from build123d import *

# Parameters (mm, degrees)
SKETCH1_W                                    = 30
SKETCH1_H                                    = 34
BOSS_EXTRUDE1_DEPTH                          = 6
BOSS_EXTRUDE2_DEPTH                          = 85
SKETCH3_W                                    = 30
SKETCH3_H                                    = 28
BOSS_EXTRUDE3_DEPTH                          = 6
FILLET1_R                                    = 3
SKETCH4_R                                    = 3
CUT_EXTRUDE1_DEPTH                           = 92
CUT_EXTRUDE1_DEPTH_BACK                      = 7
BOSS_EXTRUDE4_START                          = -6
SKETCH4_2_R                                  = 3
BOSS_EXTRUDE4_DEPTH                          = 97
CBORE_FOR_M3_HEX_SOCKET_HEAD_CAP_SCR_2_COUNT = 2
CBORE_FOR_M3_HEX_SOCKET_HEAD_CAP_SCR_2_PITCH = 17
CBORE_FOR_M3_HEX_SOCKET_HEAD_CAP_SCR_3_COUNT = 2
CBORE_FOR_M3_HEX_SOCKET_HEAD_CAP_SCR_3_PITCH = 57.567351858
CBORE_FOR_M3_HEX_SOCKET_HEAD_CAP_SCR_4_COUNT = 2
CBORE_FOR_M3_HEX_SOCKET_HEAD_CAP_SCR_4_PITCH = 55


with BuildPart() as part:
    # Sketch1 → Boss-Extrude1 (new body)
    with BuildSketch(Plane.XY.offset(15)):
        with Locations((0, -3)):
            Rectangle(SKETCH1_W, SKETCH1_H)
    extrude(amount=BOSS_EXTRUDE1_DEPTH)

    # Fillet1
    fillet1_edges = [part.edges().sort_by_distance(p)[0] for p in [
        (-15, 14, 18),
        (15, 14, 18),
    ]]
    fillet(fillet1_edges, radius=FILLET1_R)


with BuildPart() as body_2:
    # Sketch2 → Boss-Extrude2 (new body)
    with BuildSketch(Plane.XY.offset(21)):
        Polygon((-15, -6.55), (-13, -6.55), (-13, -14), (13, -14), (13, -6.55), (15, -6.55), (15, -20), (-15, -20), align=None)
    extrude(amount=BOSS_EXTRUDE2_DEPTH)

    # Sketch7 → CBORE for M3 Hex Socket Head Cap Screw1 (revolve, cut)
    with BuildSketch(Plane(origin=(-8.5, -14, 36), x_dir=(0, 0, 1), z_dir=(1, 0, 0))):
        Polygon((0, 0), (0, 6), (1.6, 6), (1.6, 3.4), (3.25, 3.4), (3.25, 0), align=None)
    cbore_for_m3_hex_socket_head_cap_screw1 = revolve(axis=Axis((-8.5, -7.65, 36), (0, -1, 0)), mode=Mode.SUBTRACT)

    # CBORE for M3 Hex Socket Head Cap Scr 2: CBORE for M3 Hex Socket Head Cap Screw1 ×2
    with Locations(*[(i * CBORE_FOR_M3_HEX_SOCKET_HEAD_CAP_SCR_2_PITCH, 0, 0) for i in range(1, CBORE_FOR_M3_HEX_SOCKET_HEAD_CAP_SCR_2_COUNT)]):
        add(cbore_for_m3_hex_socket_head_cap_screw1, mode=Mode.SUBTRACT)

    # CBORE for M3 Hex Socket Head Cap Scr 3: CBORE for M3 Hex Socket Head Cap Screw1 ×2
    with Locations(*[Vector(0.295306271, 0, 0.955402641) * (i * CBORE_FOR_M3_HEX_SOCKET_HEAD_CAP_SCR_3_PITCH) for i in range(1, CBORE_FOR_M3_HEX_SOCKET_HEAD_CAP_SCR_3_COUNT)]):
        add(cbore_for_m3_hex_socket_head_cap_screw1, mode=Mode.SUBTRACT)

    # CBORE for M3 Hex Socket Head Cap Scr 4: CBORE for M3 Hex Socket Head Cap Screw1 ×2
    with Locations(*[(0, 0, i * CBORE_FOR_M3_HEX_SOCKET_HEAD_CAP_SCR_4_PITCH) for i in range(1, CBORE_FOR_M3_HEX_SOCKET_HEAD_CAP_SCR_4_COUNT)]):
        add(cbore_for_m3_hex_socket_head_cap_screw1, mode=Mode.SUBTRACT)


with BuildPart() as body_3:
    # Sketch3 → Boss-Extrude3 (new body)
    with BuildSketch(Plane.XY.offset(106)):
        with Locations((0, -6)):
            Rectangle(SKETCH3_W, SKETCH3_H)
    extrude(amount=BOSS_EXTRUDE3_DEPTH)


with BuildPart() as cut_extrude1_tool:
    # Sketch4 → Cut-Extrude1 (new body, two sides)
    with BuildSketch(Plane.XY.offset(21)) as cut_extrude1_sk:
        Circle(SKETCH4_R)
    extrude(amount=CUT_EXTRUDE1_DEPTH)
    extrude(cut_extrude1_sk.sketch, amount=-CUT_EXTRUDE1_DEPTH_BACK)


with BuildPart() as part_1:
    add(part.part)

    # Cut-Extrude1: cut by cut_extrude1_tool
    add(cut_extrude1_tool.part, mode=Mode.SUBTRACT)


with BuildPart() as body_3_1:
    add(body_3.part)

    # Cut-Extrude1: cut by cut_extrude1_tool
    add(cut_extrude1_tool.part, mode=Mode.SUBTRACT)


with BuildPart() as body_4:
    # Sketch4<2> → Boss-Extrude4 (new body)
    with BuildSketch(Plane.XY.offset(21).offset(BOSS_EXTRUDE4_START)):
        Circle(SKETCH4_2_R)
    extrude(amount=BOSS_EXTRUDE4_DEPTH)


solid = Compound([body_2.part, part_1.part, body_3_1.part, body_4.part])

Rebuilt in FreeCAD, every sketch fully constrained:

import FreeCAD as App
import Part
import Sketcher
Q = App.Units.Quantity


def edges_at(feature, points):
    """Names of the edges that pass closest to the given points."""
    edges = feature.Shape.Edges
    near = lambda p: min(range(len(edges)), key=lambda i: edges[i].distToShape(Part.Vertex(*p))[0])
    return sorted({f"Edge{near(p) + 1}" for p in points})

doc = App.newDocument("Part")
body = doc.addObject("PartDesign::Body", "Body")

# Sketch on XY plane
sketch1 = body.newObject("Sketcher::SketchObject", "Sketch")
sketch1.AttachmentSupport = (doc.getObject("XY_Plane"), [""])
sketch1.MapMode = "FlatFace"
sketch1.AttachmentOffset = App.Placement(App.Vector(0, 0, 15), App.Rotation())
sketch1.addGeometry(Part.LineSegment(App.Vector(-15, 14, 0), App.Vector(-15, -20, 0)), False)
sketch1.addGeometry(Part.LineSegment(App.Vector(-15, -20, 0), App.Vector(15, -20, 0)), False)
sketch1.addGeometry(Part.LineSegment(App.Vector(15, -20, 0), App.Vector(15, 14, 0)), False)
sketch1.addGeometry(Part.LineSegment(App.Vector(15, 14, 0), App.Vector(-15, 14, 0)), False)
sketch1.addConstraint(Sketcher.Constraint("Coincident", 0, 2, 1, 1))
sketch1.addConstraint(Sketcher.Constraint("Coincident", 1, 2, 2, 1))
sketch1.addConstraint(Sketcher.Constraint("Coincident", 2, 2, 3, 1))
sketch1.addConstraint(Sketcher.Constraint("Coincident", 3, 2, 0, 1))
sketch1.addConstraint(Sketcher.Constraint("Vertical", 0))
sketch1.addConstraint(Sketcher.Constraint("Horizontal", 1))
sketch1.addConstraint(Sketcher.Constraint("Vertical", 2))
sketch1.addConstraint(Sketcher.Constraint("Horizontal", 3))
sketch1.addConstraint(Sketcher.Constraint("DistanceX", 1, 1, 1, 2, Q("30 mm")))
sketch1.addConstraint(Sketcher.Constraint("DistanceY", 0, 2, 0, 1, Q("34 mm")))
sketch1.addConstraint(Sketcher.Constraint("DistanceX", 0, 2, -1, 1, Q("15 mm")))
sketch1.addConstraint(Sketcher.Constraint("DistanceY", 0, 2, -1, 1, Q("20 mm")))
pad1 = body.newObject("PartDesign::Pad", "Pad")
pad1.Profile = sketch1
pad1.Length = 6
doc.recompute()

fillet = body.newObject("PartDesign::Fillet", "Fillet")
fillet.Base = (pad1, edges_at(pad1, [(-15, 14, 18), (15, 14, 18)]))
fillet.Radius = 3
body2 = doc.addObject("PartDesign::Body", "Body001")

# Sketch on XY plane
sketch2 = body2.newObject("Sketcher::SketchObject", "Sketch001")
sketch2.AttachmentSupport = (doc.getObject("XY_Plane001"), [""])
sketch2.MapMode = "FlatFace"
sketch2.AttachmentOffset = App.Placement(App.Vector(0, 0, 21), App.Rotation())
sketch2.addGeometry(Part.LineSegment(App.Vector(-13, -6.5, 0), App.Vector(-15, -6.5, 0)), False)
sketch2.addGeometry(Part.LineSegment(App.Vector(-15, -6.5, 0), App.Vector(-15, -20, 0)), False)
sketch2.addGeometry(Part.LineSegment(App.Vector(-15, -20, 0), App.Vector(15, -20, 0)), False)
sketch2.addGeometry(Part.LineSegment(App.Vector(15, -20, 0), App.Vector(15, -6.5, 0)), False)
sketch2.addGeometry(Part.LineSegment(App.Vector(15, -6.5, 0), App.Vector(13, -6.5, 0)), False)
sketch2.addGeometry(Part.LineSegment(App.Vector(13, -6.5, 0), App.Vector(13, -14, 0)), False)
sketch2.addGeometry(Part.LineSegment(App.Vector(13, -14, 0), App.Vector(-13, -14, 0)), False)
sketch2.addGeometry(Part.LineSegment(App.Vector(-13, -14, 0), App.Vector(-13, -6.5, 0)), False)
sketch2.addConstraint(Sketcher.Constraint("Coincident", 0, 2, 1, 1))
sketch2.addConstraint(Sketcher.Constraint("Coincident", 1, 2, 2, 1))
sketch2.addConstraint(Sketcher.Constraint("Coincident", 2, 2, 3, 1))
sketch2.addConstraint(Sketcher.Constraint("Coincident", 3, 2, 4, 1))
sketch2.addConstraint(Sketcher.Constraint("Coincident", 4, 2, 5, 1))
sketch2.addConstraint(Sketcher.Constraint("Coincident", 5, 2, 6, 1))
sketch2.addConstraint(Sketcher.Constraint("Coincident", 6, 2, 7, 1))
sketch2.addConstraint(Sketcher.Constraint("Coincident", 7, 2, 0, 1))
sketch2.addConstraint(Sketcher.Constraint("Horizontal", 0))
sketch2.addConstraint(Sketcher.Constraint("Vertical", 1))
sketch2.addConstraint(Sketcher.Constraint("Horizontal", 2))
sketch2.addConstraint(Sketcher.Constraint("Vertical", 3))
sketch2.addConstraint(Sketcher.Constraint("Horizontal", 4))
sketch2.addConstraint(Sketcher.Constraint("Vertical", 5))
sketch2.addConstraint(Sketcher.Constraint("Horizontal", 6))
sketch2.addConstraint(Sketcher.Constraint("Vertical", 7))
sketch2.addConstraint(Sketcher.Constraint("Symmetric", 0, 2, 3, 2, -2))
sketch2.addConstraint(Sketcher.Constraint("Equal", 0, 4))
sketch2.addConstraint(Sketcher.Constraint("DistanceX", 0, 2, 0, 1, Q("2 mm")))
sketch2.addConstraint(Sketcher.Constraint("DistanceX", 2, 1, 2, 2, Q("30 mm")))
sketch2.addConstraint(Sketcher.Constraint("DistanceY", 1, 2, -1, 1, Q("20 mm")))
sketch2.addConstraint(Sketcher.Constraint("DistanceY", 5, 2, -1, 1, Q("14 mm")))
sketch2.addConstraint(Sketcher.Constraint("DistanceY", 1, 2, 1, 1, Q("13.45 mm")))
pad2 = body2.newObject("PartDesign::Pad", "Pad001")
pad2.Profile = sketch2
pad2.Length = 85

# Sketch on YZ plane
sketch3 = body2.newObject("Sketcher::SketchObject", "Sketch002")
sketch3.AttachmentSupport = (doc.getObject("YZ_Plane001"), [""])
sketch3.MapMode = "FlatFace"
sketch3.AttachmentOffset = App.Placement(App.Vector(0, 0, -8.5), App.Rotation())
sketch3.addGeometry(Part.LineSegment(App.Vector(-20, 36, 0), App.Vector(-14, 36, 0)), False)
sketch3.addGeometry(Part.LineSegment(App.Vector(-14, 36, 0), App.Vector(-14, 39.2, 0)), False)
sketch3.addGeometry(Part.LineSegment(App.Vector(-14, 39.2, 0), App.Vector(-17.4, 39.2, 0)), False)
sketch3.addGeometry(Part.LineSegment(App.Vector(-17.4, 39.2, 0), App.Vector(-17.4, 37.6, 0)), False)
sketch3.addGeometry(Part.LineSegment(App.Vector(-17.4, 37.6, 0), App.Vector(-20, 37.6, 0)), False)
sketch3.addGeometry(Part.LineSegment(App.Vector(-20, 37.6, 0), App.Vector(-20, 36, 0)), False)
sketch3.addGeometry(Part.LineSegment(App.Vector(-14, 36, 0), App.Vector(-20, 36, 0)), True)  # axis
sketch3.addConstraint(Sketcher.Constraint("Coincident", 0, 2, 1, 1))
sketch3.addConstraint(Sketcher.Constraint("Coincident", 1, 2, 2, 1))
sketch3.addConstraint(Sketcher.Constraint("Coincident", 2, 2, 3, 1))
sketch3.addConstraint(Sketcher.Constraint("Coincident", 3, 2, 4, 1))
sketch3.addConstraint(Sketcher.Constraint("Coincident", 4, 2, 5, 1))
sketch3.addConstraint(Sketcher.Constraint("Coincident", 5, 2, 0, 1))
sketch3.addConstraint(Sketcher.Constraint("Horizontal", 0))
sketch3.addConstraint(Sketcher.Constraint("Vertical", 1))
sketch3.addConstraint(Sketcher.Constraint("Horizontal", 2))
sketch3.addConstraint(Sketcher.Constraint("Vertical", 3))
sketch3.addConstraint(Sketcher.Constraint("Horizontal", 4))
sketch3.addConstraint(Sketcher.Constraint("Vertical", 5))
sketch3.addConstraint(Sketcher.Constraint("Horizontal", 6))
sketch3.addConstraint(Sketcher.Constraint("Coincident", 6, 1, 0, 2))
sketch3.addConstraint(Sketcher.Constraint("Vertical", 4, 2, 6, 2))
sketch3.addConstraint(Sketcher.Constraint("DistanceX", 0, 1, 0, 2, Q("6 mm")))
sketch3.addConstraint(Sketcher.Constraint("DistanceX", 2, 2, 2, 1, Q("3.4 mm")))
sketch3.addConstraint(Sketcher.Constraint("DistanceY", 5, 2, 5, 1, Q("1.6 mm")))
sketch3.addConstraint(Sketcher.Constraint("DistanceX", 0, 2, -1, 1, Q("14 mm")))
sketch3.addConstraint(Sketcher.Constraint("DistanceY", -1, 1, 0, 2, Q("36 mm")))
sketch3.addConstraint(Sketcher.Constraint("DistanceY", 1, 1, 1, 2, Q("3.25 mm")))
groove = body2.newObject("PartDesign::Groove", "Groove")
groove.Profile = sketch3
groove.ReferenceAxis = (sketch3, ["Axis0"])
groove.Angle = 360
doc.recompute()

linearpattern = body2.newObject("PartDesign::LinearPattern", "LinearPattern")
linearpattern.Originals = [groove]
linearpattern.Direction = (doc.getObject("X_Axis001"), [""])
linearpattern.Mode = "offset"
linearpattern.Offset = 17
linearpattern.Occurrences = 2
body2.Tip = linearpattern
doc.recompute()

datumline = body2.newObject("PartDesign::Line", "DatumLine")
datumline.Placement = App.Placement(App.Vector(0, 0, 0), App.Rotation(App.Vector(0, 0, 1), App.Vector(0.295306271, 0, 0.955402641)))
linearpattern2 = body2.newObject("PartDesign::LinearPattern", "LinearPattern001")
linearpattern2.Originals = [groove]
linearpattern2.Direction = (datumline, [""])
linearpattern2.Mode = "offset"
linearpattern2.Offset = 57.567352
linearpattern2.Occurrences = 2
body2.Tip = linearpattern2
doc.recompute()

linearpattern3 = body2.newObject("PartDesign::LinearPattern", "LinearPattern002")
linearpattern3.Originals = [groove]
linearpattern3.Direction = (doc.getObject("Z_Axis001"), [""])
linearpattern3.Mode = "offset"
linearpattern3.Offset = 55
linearpattern3.Occurrences = 2
body2.Tip = linearpattern3
body3 = doc.addObject("PartDesign::Body", "Body002")

# Sketch on XY plane
sketch4 = body3.newObject("Sketcher::SketchObject", "Sketch003")
sketch4.AttachmentSupport = (doc.getObject("XY_Plane002"), [""])
sketch4.MapMode = "FlatFace"
sketch4.AttachmentOffset = App.Placement(App.Vector(0, 0, 106), App.Rotation())
sketch4.addGeometry(Part.LineSegment(App.Vector(-15, 8, 0), App.Vector(-15, -20, 0)), False)
sketch4.addGeometry(Part.LineSegment(App.Vector(-15, -20, 0), App.Vector(15, -20, 0)), False)
sketch4.addGeometry(Part.LineSegment(App.Vector(15, -20, 0), App.Vector(15, 8, 0)), False)
sketch4.addGeometry(Part.LineSegment(App.Vector(15, 8, 0), App.Vector(-15, 8, 0)), False)
sketch4.addConstraint(Sketcher.Constraint("Coincident", 0, 2, 1, 1))
sketch4.addConstraint(Sketcher.Constraint("Coincident", 1, 2, 2, 1))
sketch4.addConstraint(Sketcher.Constraint("Coincident", 2, 2, 3, 1))
sketch4.addConstraint(Sketcher.Constraint("Coincident", 3, 2, 0, 1))
sketch4.addConstraint(Sketcher.Constraint("Vertical", 0))
sketch4.addConstraint(Sketcher.Constraint("Horizontal", 1))
sketch4.addConstraint(Sketcher.Constraint("Vertical", 2))
sketch4.addConstraint(Sketcher.Constraint("Horizontal", 3))
sketch4.addConstraint(Sketcher.Constraint("DistanceX", 1, 1, 1, 2, Q("30 mm")))
sketch4.addConstraint(Sketcher.Constraint("DistanceY", 0, 2, 0, 1, Q("28 mm")))
sketch4.addConstraint(Sketcher.Constraint("DistanceX", 0, 2, -1, 1, Q("15 mm")))
sketch4.addConstraint(Sketcher.Constraint("DistanceY", 0, 2, -1, 1, Q("20 mm")))
pad3 = body3.newObject("PartDesign::Pad", "Pad002")
pad3.Profile = sketch4
pad3.Length = 6
body4 = doc.addObject("PartDesign::Body", "Body003")

# Sketch on XY plane
sketch5 = body4.newObject("Sketcher::SketchObject", "Sketch004")
sketch5.AttachmentSupport = (doc.getObject("XY_Plane003"), [""])
sketch5.MapMode = "FlatFace"
sketch5.AttachmentOffset = App.Placement(App.Vector(0, 0, 21), App.Rotation())
sketch5.addGeometry(Part.Circle(App.Vector(0, 0, 0), App.Vector(0, 0, 1), 3), False)
sketch5.addConstraint(Sketcher.Constraint("Coincident", 0, 3, -1, 1))
sketch5.addConstraint(Sketcher.Constraint("Diameter", 0, Q("6 mm")))
pad4 = body4.newObject("PartDesign::Pad", "Pad003")
pad4.Profile = sketch5
pad4.Type = "TwoLengths"
pad4.Length = 92
pad4.Length2 = 7
doc.recompute()

body5 = doc.addObject("PartDesign::Body", "Body004")
body5.BaseFeature = body4
boolean = body.newObject("PartDesign::Boolean", "Boolean")
boolean.Type = "Cut"
boolean.addObjects([body5])
doc.recompute()

boolean2 = body3.newObject("PartDesign::Boolean", "Boolean001")
boolean2.Type = "Cut"
boolean2.addObjects([body4])
body6 = doc.addObject("PartDesign::Body", "Body005")

# Sketch on XY plane
sketch6 = body6.newObject("Sketcher::SketchObject", "Sketch005")
sketch6.AttachmentSupport = (doc.getObject("XY_Plane005"), [""])
sketch6.MapMode = "FlatFace"
sketch6.AttachmentOffset = App.Placement(App.Vector(0, 0, 15), App.Rotation())
sketch6.addGeometry(Part.Circle(App.Vector(0, 0, 0), App.Vector(0, 0, 1), 3), False)
sketch6.addConstraint(Sketcher.Constraint("Coincident", 0, 3, -1, 1))
sketch6.addConstraint(Sketcher.Constraint("Diameter", 0, Q("6 mm")))
pad5 = body6.newObject("PartDesign::Pad", "Pad004")
pad5.Profile = sketch6
pad5.Length = 97

doc.recompute()
